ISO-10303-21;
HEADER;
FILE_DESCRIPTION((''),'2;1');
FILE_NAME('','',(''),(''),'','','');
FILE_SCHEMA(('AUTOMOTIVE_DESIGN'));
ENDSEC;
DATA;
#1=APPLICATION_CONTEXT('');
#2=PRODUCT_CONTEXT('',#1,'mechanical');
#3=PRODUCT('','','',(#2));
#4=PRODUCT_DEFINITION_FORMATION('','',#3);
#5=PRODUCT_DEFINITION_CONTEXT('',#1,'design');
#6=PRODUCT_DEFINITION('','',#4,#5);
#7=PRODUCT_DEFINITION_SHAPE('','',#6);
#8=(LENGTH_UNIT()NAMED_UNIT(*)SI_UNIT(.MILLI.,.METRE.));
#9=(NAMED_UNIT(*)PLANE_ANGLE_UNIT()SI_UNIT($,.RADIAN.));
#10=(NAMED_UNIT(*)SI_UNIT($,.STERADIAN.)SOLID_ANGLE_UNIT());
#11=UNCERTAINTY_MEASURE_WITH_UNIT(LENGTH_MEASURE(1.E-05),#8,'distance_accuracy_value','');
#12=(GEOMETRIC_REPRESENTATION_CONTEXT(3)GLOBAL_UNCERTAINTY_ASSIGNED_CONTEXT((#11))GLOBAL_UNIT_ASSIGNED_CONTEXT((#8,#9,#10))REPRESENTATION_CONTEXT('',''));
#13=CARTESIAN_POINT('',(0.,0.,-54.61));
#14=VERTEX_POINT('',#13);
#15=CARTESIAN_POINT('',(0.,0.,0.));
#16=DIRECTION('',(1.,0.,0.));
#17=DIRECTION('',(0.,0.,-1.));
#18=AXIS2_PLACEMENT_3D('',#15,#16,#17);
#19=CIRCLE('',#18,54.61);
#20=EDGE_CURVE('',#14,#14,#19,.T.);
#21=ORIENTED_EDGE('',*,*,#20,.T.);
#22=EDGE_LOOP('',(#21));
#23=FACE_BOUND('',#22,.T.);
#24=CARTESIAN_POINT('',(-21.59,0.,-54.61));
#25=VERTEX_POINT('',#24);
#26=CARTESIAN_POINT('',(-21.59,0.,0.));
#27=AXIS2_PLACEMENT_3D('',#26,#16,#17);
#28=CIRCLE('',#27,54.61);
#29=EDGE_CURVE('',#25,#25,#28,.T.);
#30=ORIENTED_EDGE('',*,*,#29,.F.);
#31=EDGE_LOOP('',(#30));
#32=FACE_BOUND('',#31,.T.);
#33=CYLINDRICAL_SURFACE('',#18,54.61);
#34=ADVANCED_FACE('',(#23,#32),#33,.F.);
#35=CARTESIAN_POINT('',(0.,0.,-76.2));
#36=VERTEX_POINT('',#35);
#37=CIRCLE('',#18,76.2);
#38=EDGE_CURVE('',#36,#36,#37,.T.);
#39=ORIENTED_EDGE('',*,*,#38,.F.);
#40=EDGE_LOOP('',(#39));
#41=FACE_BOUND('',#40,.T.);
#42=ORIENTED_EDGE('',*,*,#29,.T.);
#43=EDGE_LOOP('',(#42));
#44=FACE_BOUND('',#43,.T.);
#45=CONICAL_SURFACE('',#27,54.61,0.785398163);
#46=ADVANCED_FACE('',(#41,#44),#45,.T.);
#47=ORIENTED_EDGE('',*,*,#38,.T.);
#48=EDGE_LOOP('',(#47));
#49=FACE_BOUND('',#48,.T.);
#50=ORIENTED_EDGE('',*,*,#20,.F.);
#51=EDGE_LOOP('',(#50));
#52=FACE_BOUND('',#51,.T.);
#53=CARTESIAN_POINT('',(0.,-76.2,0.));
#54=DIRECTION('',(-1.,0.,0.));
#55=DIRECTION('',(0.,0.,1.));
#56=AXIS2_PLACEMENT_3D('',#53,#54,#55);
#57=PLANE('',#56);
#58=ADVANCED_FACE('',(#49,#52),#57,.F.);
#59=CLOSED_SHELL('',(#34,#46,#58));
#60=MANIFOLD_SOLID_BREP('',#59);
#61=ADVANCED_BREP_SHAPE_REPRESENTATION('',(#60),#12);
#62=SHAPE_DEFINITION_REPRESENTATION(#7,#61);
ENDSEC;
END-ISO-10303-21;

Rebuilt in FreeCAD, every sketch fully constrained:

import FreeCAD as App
import Part
import Sketcher
from FreeCAD import Vector
Q = App.Units.Quantity

doc = App.newDocument("Part")
params = doc.addObject("Spreadsheet::Sheet", "Params")
for row, (alias, value) in enumerate([
    ("sketch1_width", "0.85 in"),
    ("revolution_angle", "360 deg"),
], start=1):
    params.set(f"A{row}", alias)
    params.set(f"B{row}", "=" + value)
    params.setAlias(f"B{row}", alias)

body = doc.addObject("PartDesign::Body", "Body")

# Sketch on XY plane
sketch1 = doc.addObject("Sketcher::SketchObject", "Sketch")
body.addObject(sketch1)
sketch1.AttachmentSupport = (doc.XY_Plane, [""])
sketch1.MapMode = "FlatFace"
sketch1.addGeometry(Part.LineSegment(Vector(0, -76, 0), Vector(0, -55, 0)), False)
sketch1.addGeometry(Part.LineSegment(Vector(0, -55, 0), Vector(-22, -55, 0)), False)
sketch1.addGeometry(Part.LineSegment(Vector(-22, -55, 0), Vector(0, -76, 0)), False)
sketch1.addConstraint(Sketcher.Constraint("Coincident", 0, 2, 1, 1))
sketch1.addConstraint(Sketcher.Constraint("Coincident", 1, 2, 2, 1))
sketch1.addConstraint(Sketcher.Constraint("Coincident", 2, 2, 0, 1))
sketch1.addConstraint(Sketcher.Constraint("Vertical", 0))
sketch1.addConstraint(Sketcher.Constraint("Horizontal", 1))
sketch1.addConstraint(Sketcher.Constraint("PointOnObject", 0, 2, -2))
sketch1.addConstraint(Sketcher.Constraint("Equal", 1, 0))
sketch1.addConstraint(Sketcher.Constraint("DistanceY", 2, 2, -1, 1, Q("3 in")))
sketch1.addConstraint(Sketcher.Constraint("DistanceX", 1, 2, 1, 1, Q("0.85 in")))
sketch1.setExpression("Constraints[8]", "Params.sketch1_width")
revolution = doc.addObject("PartDesign::Revolution", "Revolution")
body.addObject(revolution)
revolution.Profile = sketch1
revolution.ReferenceAxis = (sketch1, ["H_Axis"])
revolution.setExpression("Angle", "Params.revolution_angle")

doc.recompute()
